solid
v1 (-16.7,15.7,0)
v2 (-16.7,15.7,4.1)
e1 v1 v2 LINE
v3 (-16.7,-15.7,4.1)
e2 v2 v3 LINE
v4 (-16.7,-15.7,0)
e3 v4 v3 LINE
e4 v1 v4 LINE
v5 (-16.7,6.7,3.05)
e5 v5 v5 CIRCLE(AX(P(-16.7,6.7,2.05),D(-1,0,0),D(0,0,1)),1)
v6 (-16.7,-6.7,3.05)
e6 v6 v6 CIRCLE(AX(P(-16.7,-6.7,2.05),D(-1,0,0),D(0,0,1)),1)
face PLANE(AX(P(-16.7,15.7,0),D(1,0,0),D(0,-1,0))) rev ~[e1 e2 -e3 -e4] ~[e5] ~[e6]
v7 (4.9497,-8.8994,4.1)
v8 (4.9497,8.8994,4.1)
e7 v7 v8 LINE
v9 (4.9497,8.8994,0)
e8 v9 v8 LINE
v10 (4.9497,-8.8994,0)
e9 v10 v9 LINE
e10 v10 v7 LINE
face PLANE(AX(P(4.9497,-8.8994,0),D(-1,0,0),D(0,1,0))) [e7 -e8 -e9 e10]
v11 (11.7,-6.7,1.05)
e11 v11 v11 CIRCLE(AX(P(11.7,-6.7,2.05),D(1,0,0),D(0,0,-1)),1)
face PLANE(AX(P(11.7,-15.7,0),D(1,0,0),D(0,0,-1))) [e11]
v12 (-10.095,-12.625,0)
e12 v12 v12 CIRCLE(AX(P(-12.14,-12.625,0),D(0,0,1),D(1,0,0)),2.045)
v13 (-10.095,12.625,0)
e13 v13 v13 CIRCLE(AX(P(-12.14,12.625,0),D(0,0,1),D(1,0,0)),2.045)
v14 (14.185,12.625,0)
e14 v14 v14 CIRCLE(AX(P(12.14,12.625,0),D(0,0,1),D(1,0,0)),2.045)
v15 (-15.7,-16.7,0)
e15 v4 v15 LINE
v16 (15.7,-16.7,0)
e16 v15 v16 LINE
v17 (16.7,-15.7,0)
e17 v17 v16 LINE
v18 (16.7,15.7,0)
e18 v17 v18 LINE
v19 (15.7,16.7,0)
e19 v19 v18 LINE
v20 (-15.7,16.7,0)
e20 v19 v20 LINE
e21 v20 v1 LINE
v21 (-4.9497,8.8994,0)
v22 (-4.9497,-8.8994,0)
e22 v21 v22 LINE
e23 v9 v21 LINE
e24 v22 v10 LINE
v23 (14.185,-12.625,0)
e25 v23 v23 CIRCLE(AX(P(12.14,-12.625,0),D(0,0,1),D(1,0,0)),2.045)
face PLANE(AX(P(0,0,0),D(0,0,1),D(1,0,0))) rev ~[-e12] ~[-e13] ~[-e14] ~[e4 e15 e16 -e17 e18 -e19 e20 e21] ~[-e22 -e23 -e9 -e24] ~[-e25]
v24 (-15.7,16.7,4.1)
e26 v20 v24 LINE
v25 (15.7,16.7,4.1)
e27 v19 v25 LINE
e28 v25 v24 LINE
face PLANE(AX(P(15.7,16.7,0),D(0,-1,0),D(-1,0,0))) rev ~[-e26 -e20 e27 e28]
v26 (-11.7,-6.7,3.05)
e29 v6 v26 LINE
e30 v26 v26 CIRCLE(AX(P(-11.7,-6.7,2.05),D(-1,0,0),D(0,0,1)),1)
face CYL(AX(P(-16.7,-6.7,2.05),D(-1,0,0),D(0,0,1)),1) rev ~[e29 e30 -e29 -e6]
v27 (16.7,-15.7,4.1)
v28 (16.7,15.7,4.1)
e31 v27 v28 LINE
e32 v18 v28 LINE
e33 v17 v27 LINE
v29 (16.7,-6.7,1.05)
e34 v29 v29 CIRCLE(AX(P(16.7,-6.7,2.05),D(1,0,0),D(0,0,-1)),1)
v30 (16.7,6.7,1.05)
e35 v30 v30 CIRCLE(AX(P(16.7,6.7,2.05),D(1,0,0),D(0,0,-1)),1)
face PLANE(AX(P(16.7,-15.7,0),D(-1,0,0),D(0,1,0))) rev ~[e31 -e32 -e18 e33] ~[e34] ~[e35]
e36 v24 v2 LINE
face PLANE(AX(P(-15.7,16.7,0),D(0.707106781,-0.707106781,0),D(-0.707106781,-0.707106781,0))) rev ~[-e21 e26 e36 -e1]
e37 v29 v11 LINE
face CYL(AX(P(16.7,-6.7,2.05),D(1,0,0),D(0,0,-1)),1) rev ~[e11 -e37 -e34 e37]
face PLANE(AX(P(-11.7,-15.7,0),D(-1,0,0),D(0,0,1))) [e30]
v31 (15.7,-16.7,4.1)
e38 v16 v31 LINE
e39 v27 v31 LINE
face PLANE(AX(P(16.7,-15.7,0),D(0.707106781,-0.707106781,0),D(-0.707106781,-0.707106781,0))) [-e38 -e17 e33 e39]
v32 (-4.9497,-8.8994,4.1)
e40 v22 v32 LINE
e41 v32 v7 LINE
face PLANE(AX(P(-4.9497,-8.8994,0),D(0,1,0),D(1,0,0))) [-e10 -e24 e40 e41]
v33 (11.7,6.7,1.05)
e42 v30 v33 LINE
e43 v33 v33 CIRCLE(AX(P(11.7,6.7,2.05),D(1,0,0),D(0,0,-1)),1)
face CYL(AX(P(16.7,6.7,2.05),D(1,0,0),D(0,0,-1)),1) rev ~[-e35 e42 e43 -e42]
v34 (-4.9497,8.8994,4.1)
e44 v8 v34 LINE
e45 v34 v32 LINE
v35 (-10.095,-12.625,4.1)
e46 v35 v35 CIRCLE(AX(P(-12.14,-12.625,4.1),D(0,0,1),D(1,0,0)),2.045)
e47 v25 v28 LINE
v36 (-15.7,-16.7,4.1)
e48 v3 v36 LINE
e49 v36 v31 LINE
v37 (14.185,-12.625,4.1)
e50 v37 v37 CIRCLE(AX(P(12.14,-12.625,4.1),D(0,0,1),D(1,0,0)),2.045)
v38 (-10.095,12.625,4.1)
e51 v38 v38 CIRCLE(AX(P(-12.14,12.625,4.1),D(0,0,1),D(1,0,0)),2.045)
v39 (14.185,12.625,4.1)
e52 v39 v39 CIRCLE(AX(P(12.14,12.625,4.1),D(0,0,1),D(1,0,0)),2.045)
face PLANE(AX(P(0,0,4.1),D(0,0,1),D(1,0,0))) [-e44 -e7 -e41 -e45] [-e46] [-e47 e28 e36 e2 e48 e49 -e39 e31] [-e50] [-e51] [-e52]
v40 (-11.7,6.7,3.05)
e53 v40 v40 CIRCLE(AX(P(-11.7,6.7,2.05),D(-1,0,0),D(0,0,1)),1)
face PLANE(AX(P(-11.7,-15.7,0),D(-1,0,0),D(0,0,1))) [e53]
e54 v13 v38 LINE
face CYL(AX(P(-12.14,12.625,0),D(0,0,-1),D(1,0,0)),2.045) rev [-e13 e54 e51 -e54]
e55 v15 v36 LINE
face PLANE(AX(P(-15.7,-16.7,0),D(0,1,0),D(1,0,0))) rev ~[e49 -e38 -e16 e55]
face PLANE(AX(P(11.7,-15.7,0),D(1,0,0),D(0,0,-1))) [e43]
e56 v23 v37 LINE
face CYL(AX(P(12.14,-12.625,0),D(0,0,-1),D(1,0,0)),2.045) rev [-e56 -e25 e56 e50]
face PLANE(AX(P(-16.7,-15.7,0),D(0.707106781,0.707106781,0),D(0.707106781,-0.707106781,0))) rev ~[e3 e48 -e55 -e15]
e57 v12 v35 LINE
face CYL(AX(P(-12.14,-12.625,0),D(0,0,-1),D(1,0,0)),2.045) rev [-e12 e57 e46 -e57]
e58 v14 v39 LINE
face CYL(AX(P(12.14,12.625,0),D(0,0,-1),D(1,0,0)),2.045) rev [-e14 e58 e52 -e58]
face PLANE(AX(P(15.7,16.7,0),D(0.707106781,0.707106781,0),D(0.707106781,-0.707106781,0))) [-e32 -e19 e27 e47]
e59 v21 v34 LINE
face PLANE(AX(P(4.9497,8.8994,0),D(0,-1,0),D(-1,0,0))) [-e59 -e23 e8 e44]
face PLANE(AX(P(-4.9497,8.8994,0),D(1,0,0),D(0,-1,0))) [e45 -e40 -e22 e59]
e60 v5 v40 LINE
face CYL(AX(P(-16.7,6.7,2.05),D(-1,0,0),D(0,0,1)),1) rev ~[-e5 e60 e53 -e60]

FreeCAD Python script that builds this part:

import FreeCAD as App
import Part
import Sketcher
Q = App.Units.Quantity

doc = App.newDocument("Part")
body = doc.addObject("PartDesign::Body", "Body")

# Sketch on XY plane
sketch1 = body.newObject("Sketcher::SketchObject", "Sketch")
sketch1.AttachmentSupport = (doc.getObject("XY_Plane"), [""])
sketch1.MapMode = "FlatFace"
sketch1.addGeometry([
    Part.LineSegment(App.Vector(-16.7, -15.7, 0), App.Vector(-15.7, -16.7, 0)),  # 0
    Part.LineSegment(App.Vector(-15.7, -16.7, 0), App.Vector(15.7, -16.7, 0)),  # 1
    Part.LineSegment(App.Vector(15.7, -16.7, 0), App.Vector(16.7, -15.7, 0)),  # 2
    Part.LineSegment(App.Vector(16.7, -15.7, 0), App.Vector(16.7, 15.7, 0)),  # 3
    Part.LineSegment(App.Vector(16.7, 15.7, 0), App.Vector(15.7, 16.7, 0)),  # 4
    Part.LineSegment(App.Vector(15.7, 16.7, 0), App.Vector(-15.7, 16.7, 0)),  # 5
    Part.LineSegment(App.Vector(-15.7, 16.7, 0), App.Vector(-16.7, 15.7, 0)),  # 6
    Part.LineSegment(App.Vector(-16.7, 15.7, 0), App.Vector(-16.7, -15.7, 0)),  # 7
    Part.Circle(App.Vector(-12.14, -12.625, 0), App.Vector(0, 0, 1), 2.045),  # 8
    Part.Circle(App.Vector(12.14, -12.625, 0), App.Vector(0, 0, 1), 2.045),  # 9
    Part.Circle(App.Vector(-12.14, 12.625, 0), App.Vector(0, 0, 1), 2.045),  # 10
    Part.LineSegment(App.Vector(4.9497, -8.8994, 0), App.Vector(-4.9497, -8.8994, 0)),  # 11
    Part.LineSegment(App.Vector(-4.9497, -8.8994, 0), App.Vector(-4.9497, 8.8994, 0)),  # 12
    Part.LineSegment(App.Vector(-4.9497, 8.8994, 0), App.Vector(4.9497, 8.8994, 0)),  # 13
    Part.LineSegment(App.Vector(4.9497, 8.8994, 0), App.Vector(4.9497, -8.8994, 0)),  # 14
    Part.Circle(App.Vector(12.14, 12.625, 0), App.Vector(0, 0, 1), 2.045),  # 15
], False)
sketch1.addConstraint([
    Sketcher.Constraint("Coincident", 0, 2, 1, 1),
    Sketcher.Constraint("Coincident", 1, 2, 2, 1),
    Sketcher.Constraint("Coincident", 2, 2, 3, 1),
    Sketcher.Constraint("Coincident", 3, 2, 4, 1),
    Sketcher.Constraint("Coincident", 4, 2, 5, 1),
    Sketcher.Constraint("Coincident", 5, 2, 6, 1),
    Sketcher.Constraint("Coincident", 6, 2, 7, 1),
    Sketcher.Constraint("Coincident", 7, 2, 0, 1),
    Sketcher.Constraint("Coincident", 11, 2, 12, 1),
    Sketcher.Constraint("Coincident", 12, 2, 13, 1),
    Sketcher.Constraint("Coincident", 13, 2, 14, 1),
    Sketcher.Constraint("Coincident", 14, 2, 11, 1),
    Sketcher.Constraint("Horizontal", 1),
    Sketcher.Constraint("Vertical", 3),
    Sketcher.Constraint("Horizontal", 5),
    Sketcher.Constraint("Vertical", 7),
    Sketcher.Constraint("Horizontal", 11),
    Sketcher.Constraint("Vertical", 12),
    Sketcher.Constraint("Horizontal", 13),
    Sketcher.Constraint("Vertical", 14),
    Sketcher.Constraint("Equal", 8, 9),
    Sketcher.Constraint("Equal", 9, 10),
    Sketcher.Constraint("Equal", 10, 15),
    Sketcher.Constraint("Symmetric", 9, 3, 10, 3, -1, 1),
    Sketcher.Constraint("Symmetric", 8, 3, 15, 3, -1, 1),
    Sketcher.Constraint("Symmetric", 0, 2, 4, 2, -1, 1),
    Sketcher.Constraint("Symmetric", 2, 2, 6, 2, -1, 1),
    Sketcher.Constraint("Symmetric", 11, 2, 13, 2, -1, 1),
    Sketcher.Constraint("Symmetric", 8, 3, 9, 3, -2),
    Sketcher.Constraint("Perpendicular", 0, 2),
    Sketcher.Constraint("Perpendicular", 2, 4),
    Sketcher.Constraint("Perpendicular", 4, 6),
    Sketcher.Constraint("Horizontal", 3, 2, 6, 2),
    Sketcher.Constraint("Vertical", 1, 2, 4, 2),
    Sketcher.Constraint("Equal", 5, 3),
    Sketcher.Constraint("Diameter", 8, Q("4.09 mm")),
    Sketcher.Constraint("DistanceX", 1, 2, 2, 2, Q("1 mm")),
    Sketcher.Constraint("DistanceX", 8, 3, -1, 1, Q("12.14 mm")),
    Sketcher.Constraint("DistanceY", 8, 3, 10, 3, Q("25.25 mm")),
    Sketcher.Constraint("DistanceX", 1, 1, 1, 2, Q("31.4 mm")),
    Sketcher.Constraint("DistanceX", 11, 2, 11, 1, Q("9.8994 mm")),
    Sketcher.Constraint("DistanceY", 12, 1, 12, 2, Q("17.7988 mm")),
])
pad1 = body.newObject("PartDesign::Pad", "Pad")
pad1.Profile = sketch1
pad1.Length = 4.1

# Sketch on YZ plane
sketch2 = body.newObject("Sketcher::SketchObject", "Sketch001")
sketch2.AttachmentSupport = (doc.getObject("YZ_Plane"), [""])
sketch2.MapMode = "FlatFace"
sketch2.AttachmentOffset = App.Placement(App.Vector(0, 0, 16.7), App.Rotation())
sketch2.addGeometry([
    Part.Circle(App.Vector(6.7, 2.05, 0), App.Vector(0, 0, 1), 1),
    Part.Circle(App.Vector(-6.7, 2.05, 0), App.Vector(0, 0, 1), 1),
], False)
sketch2.addConstraint([
    Sketcher.Constraint("Equal", 0, 1),
    Sketcher.Constraint("Symmetric", 0, 3, 1, 3, -2),
    Sketcher.Constraint("Diameter", 0, Q("2 mm")),
    Sketcher.Constraint("DistanceX", 1, 3, 0, 3, Q("13.4 mm")),
    Sketcher.Constraint("DistanceY", -1, 1, 0, 3, Q("2.05 mm")),
])
pocket1 = body.newObject("PartDesign::Pocket", "Pocket")
pocket1.Profile = sketch2
pocket1.Length = 5

# Sketch on YZ plane
sketch3 = body.newObject("Sketcher::SketchObject", "Sketch002")
sketch3.AttachmentSupport = (doc.getObject("YZ_Plane"), [""])
sketch3.MapMode = "FlatFace"
sketch3.AttachmentOffset = App.Placement(App.Vector(0, 0, -16.7), App.Rotation())
sketch3.addGeometry([
    Part.Circle(App.Vector(6.7, 2.05, 0), App.Vector(0, 0, 1), 1),
    Part.Circle(App.Vector(-6.7, 2.05, 0), App.Vector(0, 0, 1), 1),
], False)
sketch3.addConstraint([
    Sketcher.Constraint("Equal", 0, 1),
    Sketcher.Constraint("Symmetric", 0, 3, 1, 3, -2),
    Sketcher.Constraint("Diameter", 0, Q("2 mm")),
    Sketcher.Constraint("DistanceX", -1, 1, 0, 3, Q("6.7 mm")),
    Sketcher.Constraint("DistanceY", -1, 1, 0, 3, Q("2.05 mm")),
])
pocket2 = body.newObject("PartDesign::Pocket", "Pocket001")
pocket2.Profile = sketch3
pocket2.Length = 5
pocket2.Reversed = True

doc.recompute()
